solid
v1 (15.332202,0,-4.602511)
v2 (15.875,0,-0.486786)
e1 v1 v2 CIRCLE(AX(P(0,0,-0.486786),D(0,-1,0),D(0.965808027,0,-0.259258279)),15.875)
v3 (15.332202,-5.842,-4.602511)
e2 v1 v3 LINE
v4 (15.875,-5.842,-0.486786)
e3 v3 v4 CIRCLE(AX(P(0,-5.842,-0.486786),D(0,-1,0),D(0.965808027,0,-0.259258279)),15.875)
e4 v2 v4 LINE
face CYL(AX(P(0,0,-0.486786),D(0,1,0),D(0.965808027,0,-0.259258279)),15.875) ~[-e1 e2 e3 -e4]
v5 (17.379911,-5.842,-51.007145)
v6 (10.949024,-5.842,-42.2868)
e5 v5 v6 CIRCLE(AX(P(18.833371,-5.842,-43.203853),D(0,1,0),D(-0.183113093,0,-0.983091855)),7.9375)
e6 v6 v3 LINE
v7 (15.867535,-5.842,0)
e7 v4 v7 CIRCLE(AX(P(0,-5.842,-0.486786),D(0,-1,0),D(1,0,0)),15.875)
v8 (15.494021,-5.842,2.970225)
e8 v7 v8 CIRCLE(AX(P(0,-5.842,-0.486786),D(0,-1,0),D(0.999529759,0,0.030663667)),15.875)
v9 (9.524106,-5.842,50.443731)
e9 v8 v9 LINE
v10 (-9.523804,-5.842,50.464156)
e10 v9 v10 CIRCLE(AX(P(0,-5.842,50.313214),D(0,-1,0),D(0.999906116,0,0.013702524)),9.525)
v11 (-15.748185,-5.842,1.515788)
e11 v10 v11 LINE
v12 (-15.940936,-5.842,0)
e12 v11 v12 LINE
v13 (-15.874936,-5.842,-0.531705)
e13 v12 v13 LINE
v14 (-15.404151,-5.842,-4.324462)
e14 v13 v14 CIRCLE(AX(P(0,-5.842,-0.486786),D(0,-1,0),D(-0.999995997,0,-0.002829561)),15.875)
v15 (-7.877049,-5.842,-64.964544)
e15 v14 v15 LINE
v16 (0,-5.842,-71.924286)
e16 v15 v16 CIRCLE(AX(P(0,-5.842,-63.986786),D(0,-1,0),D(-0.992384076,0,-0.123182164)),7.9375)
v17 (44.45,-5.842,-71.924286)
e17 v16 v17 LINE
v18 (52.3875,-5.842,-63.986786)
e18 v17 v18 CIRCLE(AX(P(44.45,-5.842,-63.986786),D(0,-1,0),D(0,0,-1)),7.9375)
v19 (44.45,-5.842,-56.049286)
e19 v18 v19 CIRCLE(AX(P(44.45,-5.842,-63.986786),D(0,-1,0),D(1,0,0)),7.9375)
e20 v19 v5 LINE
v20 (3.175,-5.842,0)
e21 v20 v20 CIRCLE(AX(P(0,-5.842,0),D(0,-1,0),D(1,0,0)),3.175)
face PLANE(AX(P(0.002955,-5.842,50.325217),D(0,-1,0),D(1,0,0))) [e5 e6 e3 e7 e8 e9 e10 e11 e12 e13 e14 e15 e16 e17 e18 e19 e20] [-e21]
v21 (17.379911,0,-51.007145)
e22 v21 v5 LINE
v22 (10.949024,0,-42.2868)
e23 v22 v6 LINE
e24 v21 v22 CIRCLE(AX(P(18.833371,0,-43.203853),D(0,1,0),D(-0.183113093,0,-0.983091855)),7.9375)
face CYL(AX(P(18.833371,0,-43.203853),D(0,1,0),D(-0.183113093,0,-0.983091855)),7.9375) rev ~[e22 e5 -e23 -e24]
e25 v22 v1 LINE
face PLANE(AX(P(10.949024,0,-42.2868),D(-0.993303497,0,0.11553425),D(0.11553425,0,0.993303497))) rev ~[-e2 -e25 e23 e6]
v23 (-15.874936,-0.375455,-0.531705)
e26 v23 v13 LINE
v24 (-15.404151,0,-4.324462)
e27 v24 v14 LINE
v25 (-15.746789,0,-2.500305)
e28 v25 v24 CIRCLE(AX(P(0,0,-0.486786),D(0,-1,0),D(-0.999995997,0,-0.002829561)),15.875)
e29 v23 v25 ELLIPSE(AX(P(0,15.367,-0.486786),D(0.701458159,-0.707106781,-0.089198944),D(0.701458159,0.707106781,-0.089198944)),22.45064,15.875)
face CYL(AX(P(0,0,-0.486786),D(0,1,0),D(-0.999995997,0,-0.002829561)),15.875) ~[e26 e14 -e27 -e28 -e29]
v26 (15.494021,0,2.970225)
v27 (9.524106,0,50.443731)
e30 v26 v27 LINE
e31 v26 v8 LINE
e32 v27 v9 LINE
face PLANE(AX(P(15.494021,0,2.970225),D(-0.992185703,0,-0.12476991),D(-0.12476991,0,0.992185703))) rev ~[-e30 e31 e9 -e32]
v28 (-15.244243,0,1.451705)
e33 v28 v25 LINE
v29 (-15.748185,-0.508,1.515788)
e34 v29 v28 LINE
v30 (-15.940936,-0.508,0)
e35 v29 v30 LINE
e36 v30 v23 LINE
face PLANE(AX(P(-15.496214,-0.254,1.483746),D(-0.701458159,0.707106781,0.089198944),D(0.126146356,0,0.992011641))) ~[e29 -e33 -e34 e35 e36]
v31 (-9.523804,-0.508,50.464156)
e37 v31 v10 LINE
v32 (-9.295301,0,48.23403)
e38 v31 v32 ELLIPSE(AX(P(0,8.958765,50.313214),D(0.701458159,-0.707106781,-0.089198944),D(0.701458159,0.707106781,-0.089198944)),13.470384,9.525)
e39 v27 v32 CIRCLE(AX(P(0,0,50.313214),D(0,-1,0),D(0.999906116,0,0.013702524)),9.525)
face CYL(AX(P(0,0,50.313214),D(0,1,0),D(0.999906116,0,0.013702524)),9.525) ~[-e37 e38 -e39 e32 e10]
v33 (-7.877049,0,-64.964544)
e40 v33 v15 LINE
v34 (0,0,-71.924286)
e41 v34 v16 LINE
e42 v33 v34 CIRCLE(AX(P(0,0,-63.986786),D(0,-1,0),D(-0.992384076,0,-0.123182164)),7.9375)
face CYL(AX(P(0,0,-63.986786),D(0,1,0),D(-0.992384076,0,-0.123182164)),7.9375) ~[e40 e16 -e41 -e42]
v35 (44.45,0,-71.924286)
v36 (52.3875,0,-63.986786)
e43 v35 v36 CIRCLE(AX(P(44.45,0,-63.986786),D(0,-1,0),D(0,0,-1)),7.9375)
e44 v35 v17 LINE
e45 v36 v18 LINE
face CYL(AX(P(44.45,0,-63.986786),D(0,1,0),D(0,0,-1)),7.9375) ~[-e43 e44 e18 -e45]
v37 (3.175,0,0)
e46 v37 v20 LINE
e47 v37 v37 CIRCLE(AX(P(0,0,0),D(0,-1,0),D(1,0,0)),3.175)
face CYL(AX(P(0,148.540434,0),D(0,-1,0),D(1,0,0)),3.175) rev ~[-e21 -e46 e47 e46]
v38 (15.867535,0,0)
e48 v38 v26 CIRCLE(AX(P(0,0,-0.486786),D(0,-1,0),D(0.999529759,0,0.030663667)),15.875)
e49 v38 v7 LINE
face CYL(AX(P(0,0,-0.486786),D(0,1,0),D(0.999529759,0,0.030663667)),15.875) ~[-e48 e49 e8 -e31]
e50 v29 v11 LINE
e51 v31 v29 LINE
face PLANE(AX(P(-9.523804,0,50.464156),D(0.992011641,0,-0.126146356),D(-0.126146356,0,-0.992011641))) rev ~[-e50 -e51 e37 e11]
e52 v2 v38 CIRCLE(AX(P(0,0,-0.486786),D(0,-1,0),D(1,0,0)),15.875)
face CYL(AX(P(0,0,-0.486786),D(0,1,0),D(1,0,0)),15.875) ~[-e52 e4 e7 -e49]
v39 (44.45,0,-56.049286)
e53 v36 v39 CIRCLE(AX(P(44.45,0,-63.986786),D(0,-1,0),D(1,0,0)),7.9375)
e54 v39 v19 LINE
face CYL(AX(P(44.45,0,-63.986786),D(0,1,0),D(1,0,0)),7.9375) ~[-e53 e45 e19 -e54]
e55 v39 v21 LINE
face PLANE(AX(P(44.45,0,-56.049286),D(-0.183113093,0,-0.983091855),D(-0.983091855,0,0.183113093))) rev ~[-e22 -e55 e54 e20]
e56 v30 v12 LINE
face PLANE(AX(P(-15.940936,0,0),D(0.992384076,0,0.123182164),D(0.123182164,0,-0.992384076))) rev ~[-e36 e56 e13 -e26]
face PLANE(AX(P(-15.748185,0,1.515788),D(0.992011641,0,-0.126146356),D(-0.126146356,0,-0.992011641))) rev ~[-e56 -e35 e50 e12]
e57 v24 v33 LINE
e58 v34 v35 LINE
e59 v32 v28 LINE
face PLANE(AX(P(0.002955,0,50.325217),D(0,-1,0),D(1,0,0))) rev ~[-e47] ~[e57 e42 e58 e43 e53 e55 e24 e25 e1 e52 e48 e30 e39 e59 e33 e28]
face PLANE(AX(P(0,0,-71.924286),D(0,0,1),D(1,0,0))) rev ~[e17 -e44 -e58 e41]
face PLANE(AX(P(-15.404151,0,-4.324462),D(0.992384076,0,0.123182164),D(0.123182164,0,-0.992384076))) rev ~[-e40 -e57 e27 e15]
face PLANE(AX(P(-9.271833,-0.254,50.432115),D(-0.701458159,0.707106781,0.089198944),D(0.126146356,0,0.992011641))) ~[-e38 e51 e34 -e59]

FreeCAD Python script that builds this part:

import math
import FreeCAD as App
import Part
import Sketcher
from FreeCAD import Vector
Q = App.Units.Quantity


def edges_at(feature, points):
    """Names of the edges that pass closest to the given points."""
    edges = feature.Shape.Edges
    near = lambda p: min(range(len(edges)), key=lambda i: edges[i].distToShape(Part.Vertex(*p))[0])
    return sorted({f"Edge{near(p) + 1}" for p in points})

doc = App.newDocument("Part")
params = doc.addObject("Spreadsheet::Sheet", "Params")
for row, (alias, value) in enumerate([
    ("sketch1_radius", "0.375 in"),
    ("sketch1_radius2", "0.625 in"),
    ("sketch1_radius3", "0.3125 in"),
    ("sketch1_radius4", "0.3125 in"),
    ("sketch1_radius5", "0.3125 in"),
    ("pad1_length", "0.23 in"),
    ("sketch2_diameter", "0.25 in"),
    ("hole_diameter", "0.25 in"),
    ("chamfer_size", "0.02 in"),
], start=1):
    params.set(f"A{row}", alias)
    params.set(f"B{row}", "=" + value)
    params.setAlias(f"B{row}", alias)

body = doc.addObject("PartDesign::Body", "Body")

# Sketch on XZ plane
sketch1 = body.newObject("Sketcher::SketchObject", "Sketch")
sketch1.AttachmentSupport = (doc.getObject("XZ_Plane"), [""])
sketch1.MapMode = "FlatFace"
sketch1.addGeometry([
    Part.ArcOfCircle(Part.Circle(Vector(0, 50.313214, 0), Vector(0, 0, 1), 9.525), math.radians(0.785121), math.radians(179.092003)),  # 0
    Part.LineSegment(Vector(-9.523804, 50.464156, 0), Vector(-15.748185, 1.515788, 0)),  # 1
    Part.LineSegment(Vector(-15.748185, 1.515788, 0), Vector(-15.940936, 0, 0)),  # 2
    Part.LineSegment(Vector(-15.940936, 0, 0), Vector(-15.874936, -0.531705, 0)),  # 3
    Part.ArcOfCircle(Part.Circle(Vector(0, -0.486786, 0), Vector(0, 0, 1), 15.875), math.radians(-179.837878), math.radians(-166.010542)),  # 4
    Part.LineSegment(Vector(-15.404151, -4.324462, 0), Vector(-7.877049, -64.964544, 0)),  # 5
    Part.ArcOfCircle(Part.Circle(Vector(0, -63.986786, 0), Vector(0, 0, 1), 7.9375), math.radians(-172.92421), math.radians(-90)),  # 6
    Part.LineSegment(Vector(0, -71.924286, 0), Vector(44.45, -71.924286, 0)),  # 7
    Part.ArcOfCircle(Part.Circle(Vector(44.45, -63.986786, 0), Vector(0, 0, 1), 7.9375), math.radians(-90), math.radians(0)),  # 8
    Part.ArcOfCircle(Part.Circle(Vector(44.45, -63.986786, 0), Vector(0, 0, 1), 7.9375), math.radians(0), math.radians(90)),  # 9
    Part.LineSegment(Vector(44.45, -56.049286, 0), Vector(17.379911, -51.007145, 0)),  # 10
    Part.ArcOfCircle(Part.Circle(Vector(18.833371, -43.203853, 0), Vector(0, 0, 1), 7.9375), math.radians(173.365559), math.radians(259.448859)),  # 11
    Part.LineSegment(Vector(10.949024, -42.2868, 0), Vector(15.332202, -4.602511, 0)),  # 12
    Part.ArcOfCircle(Part.Circle(Vector(0, -0.486786, 0), Vector(0, 0, 1), 15.875), math.radians(-15.026056), math.radians(0)),  # 13
    Part.ArcOfCircle(Part.Circle(Vector(0, -0.486786, 0), Vector(0, 0, 1), 15.875), math.radians(0), math.radians(1.757174)),  # 14
    Part.ArcOfCircle(Part.Circle(Vector(0, -0.486786, 0), Vector(0, 0, 1), 15.875), math.radians(1.757174), math.radians(12.577763)),  # 15
    Part.LineSegment(Vector(15.494021, 2.970225, 0), Vector(9.524106, 50.443731, 0)),  # 16
], False)
sketch1.addConstraint([
    Sketcher.Constraint("Coincident", 0, 2, 1, 1),
    Sketcher.Constraint("Coincident", 1, 2, 2, 1),
    Sketcher.Constraint("Coincident", 2, 2, 3, 1),
    Sketcher.Constraint("Coincident", 3, 2, 4, 1),
    Sketcher.Constraint("Coincident", 4, 2, 5, 1),
    Sketcher.Constraint("Coincident", 5, 2, 6, 1),
    Sketcher.Constraint("Coincident", 6, 2, 7, 1),
    Sketcher.Constraint("Coincident", 7, 2, 8, 1),
    Sketcher.Constraint("Coincident", 8, 2, 9, 1),
    Sketcher.Constraint("Coincident", 9, 2, 10, 1),
    Sketcher.Constraint("Coincident", 10, 2, 11, 2),
    Sketcher.Constraint("Coincident", 11, 1, 12, 1),
    Sketcher.Constraint("Coincident", 12, 2, 13, 1),
    Sketcher.Constraint("Coincident", 13, 2, 14, 1),
    Sketcher.Constraint("Coincident", 14, 2, 15, 1),
    Sketcher.Constraint("Coincident", 15, 2, 16, 1),
    Sketcher.Constraint("Coincident", 16, 2, 0, 1),
    Sketcher.Constraint("Horizontal", 7),
    Sketcher.Constraint("Coincident", 9, 3, 8, 3),
    Sketcher.Constraint("Coincident", 13, 3, 4, 3),
    Sketcher.Constraint("Coincident", 14, 3, 4, 3),
    Sketcher.Constraint("Coincident", 15, 3, 4, 3),
    Sketcher.Constraint("PointOnObject", 0, 3, -2),
    Sketcher.Constraint("PointOnObject", 4, 3, -2),
    Sketcher.Constraint("PointOnObject", 6, 3, -2),
    Sketcher.Constraint("PointOnObject", 2, 2, -1),
    Sketcher.Constraint("PointOnObject", 6, 2, -2),
    Sketcher.Constraint("PointOnObject", 14, 2, -1),
    Sketcher.Constraint("Radius", 0, Q("0.375 in")),
    Sketcher.Constraint("Radius", 4, Q("0.625 in")),
    Sketcher.Constraint("Radius", 6, Q("0.3125 in")),
    Sketcher.Constraint("Radius", 8, Q("0.3125 in")),
    Sketcher.Constraint("Radius", 11, Q("0.3125 in")),
    Sketcher.Constraint("Radius", 13, Q("0.625 in")),
    Sketcher.Constraint("DistanceY", 4, 3, 0, 3, Q("2 in")),
    Sketcher.Constraint("DistanceX", 7, 1, 7, 2, Q("1.75 in")),
    Sketcher.Constraint("DistanceY", 6, 3, 4, 3, Q("2.5 in")),
    Sketcher.Constraint("DistanceX", -1, 1, 8, 3, Q("1.75 in")),
    Sketcher.Constraint("DistanceX", -1, 1, 9, 2, Q("1.75 in")),
    Sketcher.Constraint("DistanceY", 7, 2, 8, 2, Q("0.3125 in")),
    Sketcher.Constraint("Distance", 16, 47.847399),
    Sketcher.Constraint("DistanceY", 11, 1, -1, 1, 42.2868),
    Sketcher.Constraint("DistanceX", 2, 2, 3, 2, 0.065999),
    Sketcher.Constraint("DistanceY", 5, 2, 10, 2, 13.957399),
    Sketcher.Constraint("DistanceX", -1, 1, 11, 3, 18.833371),
    Sketcher.Constraint("DistanceX", 4, 2, -1, 1, 15.404151),
    Sketcher.Constraint("DistanceY", 4, 2, -1, 1, 4.324462),
    Sketcher.Constraint("DistanceX", 5, 2, -1, 1, 7.877049),
    Sketcher.Constraint("DistanceX", -1, 1, 10, 2, 17.379911),
    Sketcher.Constraint("DistanceY", 12, 2, -1, 1, 4.602511),
    Sketcher.Constraint("DistanceX", -1, 1, 15, 2, 15.494021),
    Sketcher.Constraint("DistanceY", 0, 3, 0, 2, 0.150942),
    Sketcher.Constraint("DistanceX", 1, 2, 0, 2, 6.224381),
    Sketcher.Constraint("DistanceY", 1, 2, 0, 2, 48.948368),
    Sketcher.Constraint("DistanceY", 3, 2, 14, 3, 0.044919),
    Sketcher.Constraint("DistanceY", 13, 2, 15, 2, 3.457011),
])
sketch1.setExpression("Constraints[28]", "Params.sketch1_radius")
sketch1.setExpression("Constraints[29]", "Params.sketch1_radius2")
sketch1.setExpression("Constraints[30]", "Params.sketch1_radius3")
sketch1.setExpression("Constraints[31]", "Params.sketch1_radius4")
sketch1.setExpression("Constraints[32]", "Params.sketch1_radius5")
pad1 = body.newObject("PartDesign::Pad", "Pad")
pad1.Profile = sketch1
pad1.setExpression("Length", "Params.pad1_length")

# Sketch on XZ plane
sketch2 = body.newObject("Sketcher::SketchObject", "Sketch001")
sketch2.AttachmentSupport = (doc.getObject("XZ_Plane"), [""])
sketch2.MapMode = "FlatFace"
sketch2.addGeometry(Part.Circle(Vector(0, 0, 0), Vector(0, 0, 1), 3.2), False)
sketch2.addConstraint([
    Sketcher.Constraint("Coincident", 0, 3, -1, 1),
    Sketcher.Constraint("Diameter", 0, Q("0.25 in")),
])
sketch2.setExpression("Constraints[1]", "Params.sketch2_diameter")
doc.recompute()
hole = body.newObject("PartDesign::Hole", "Hole")
hole.Profile = sketch2
hole.ThreadType = "None"
hole.setExpression("Diameter", "Params.hole_diameter")
hole.DepthType = "ThroughAll"
hole.Reversed = True
doc.recompute()

chamfer = body.newObject("PartDesign::Chamfer", "Chamfer")
chamfer.Base = (hole, edges_at(hole, [(-12.636, 0, 25.99)]))
chamfer.setExpression("Size", "Params.chamfer_size")

doc.recompute()
